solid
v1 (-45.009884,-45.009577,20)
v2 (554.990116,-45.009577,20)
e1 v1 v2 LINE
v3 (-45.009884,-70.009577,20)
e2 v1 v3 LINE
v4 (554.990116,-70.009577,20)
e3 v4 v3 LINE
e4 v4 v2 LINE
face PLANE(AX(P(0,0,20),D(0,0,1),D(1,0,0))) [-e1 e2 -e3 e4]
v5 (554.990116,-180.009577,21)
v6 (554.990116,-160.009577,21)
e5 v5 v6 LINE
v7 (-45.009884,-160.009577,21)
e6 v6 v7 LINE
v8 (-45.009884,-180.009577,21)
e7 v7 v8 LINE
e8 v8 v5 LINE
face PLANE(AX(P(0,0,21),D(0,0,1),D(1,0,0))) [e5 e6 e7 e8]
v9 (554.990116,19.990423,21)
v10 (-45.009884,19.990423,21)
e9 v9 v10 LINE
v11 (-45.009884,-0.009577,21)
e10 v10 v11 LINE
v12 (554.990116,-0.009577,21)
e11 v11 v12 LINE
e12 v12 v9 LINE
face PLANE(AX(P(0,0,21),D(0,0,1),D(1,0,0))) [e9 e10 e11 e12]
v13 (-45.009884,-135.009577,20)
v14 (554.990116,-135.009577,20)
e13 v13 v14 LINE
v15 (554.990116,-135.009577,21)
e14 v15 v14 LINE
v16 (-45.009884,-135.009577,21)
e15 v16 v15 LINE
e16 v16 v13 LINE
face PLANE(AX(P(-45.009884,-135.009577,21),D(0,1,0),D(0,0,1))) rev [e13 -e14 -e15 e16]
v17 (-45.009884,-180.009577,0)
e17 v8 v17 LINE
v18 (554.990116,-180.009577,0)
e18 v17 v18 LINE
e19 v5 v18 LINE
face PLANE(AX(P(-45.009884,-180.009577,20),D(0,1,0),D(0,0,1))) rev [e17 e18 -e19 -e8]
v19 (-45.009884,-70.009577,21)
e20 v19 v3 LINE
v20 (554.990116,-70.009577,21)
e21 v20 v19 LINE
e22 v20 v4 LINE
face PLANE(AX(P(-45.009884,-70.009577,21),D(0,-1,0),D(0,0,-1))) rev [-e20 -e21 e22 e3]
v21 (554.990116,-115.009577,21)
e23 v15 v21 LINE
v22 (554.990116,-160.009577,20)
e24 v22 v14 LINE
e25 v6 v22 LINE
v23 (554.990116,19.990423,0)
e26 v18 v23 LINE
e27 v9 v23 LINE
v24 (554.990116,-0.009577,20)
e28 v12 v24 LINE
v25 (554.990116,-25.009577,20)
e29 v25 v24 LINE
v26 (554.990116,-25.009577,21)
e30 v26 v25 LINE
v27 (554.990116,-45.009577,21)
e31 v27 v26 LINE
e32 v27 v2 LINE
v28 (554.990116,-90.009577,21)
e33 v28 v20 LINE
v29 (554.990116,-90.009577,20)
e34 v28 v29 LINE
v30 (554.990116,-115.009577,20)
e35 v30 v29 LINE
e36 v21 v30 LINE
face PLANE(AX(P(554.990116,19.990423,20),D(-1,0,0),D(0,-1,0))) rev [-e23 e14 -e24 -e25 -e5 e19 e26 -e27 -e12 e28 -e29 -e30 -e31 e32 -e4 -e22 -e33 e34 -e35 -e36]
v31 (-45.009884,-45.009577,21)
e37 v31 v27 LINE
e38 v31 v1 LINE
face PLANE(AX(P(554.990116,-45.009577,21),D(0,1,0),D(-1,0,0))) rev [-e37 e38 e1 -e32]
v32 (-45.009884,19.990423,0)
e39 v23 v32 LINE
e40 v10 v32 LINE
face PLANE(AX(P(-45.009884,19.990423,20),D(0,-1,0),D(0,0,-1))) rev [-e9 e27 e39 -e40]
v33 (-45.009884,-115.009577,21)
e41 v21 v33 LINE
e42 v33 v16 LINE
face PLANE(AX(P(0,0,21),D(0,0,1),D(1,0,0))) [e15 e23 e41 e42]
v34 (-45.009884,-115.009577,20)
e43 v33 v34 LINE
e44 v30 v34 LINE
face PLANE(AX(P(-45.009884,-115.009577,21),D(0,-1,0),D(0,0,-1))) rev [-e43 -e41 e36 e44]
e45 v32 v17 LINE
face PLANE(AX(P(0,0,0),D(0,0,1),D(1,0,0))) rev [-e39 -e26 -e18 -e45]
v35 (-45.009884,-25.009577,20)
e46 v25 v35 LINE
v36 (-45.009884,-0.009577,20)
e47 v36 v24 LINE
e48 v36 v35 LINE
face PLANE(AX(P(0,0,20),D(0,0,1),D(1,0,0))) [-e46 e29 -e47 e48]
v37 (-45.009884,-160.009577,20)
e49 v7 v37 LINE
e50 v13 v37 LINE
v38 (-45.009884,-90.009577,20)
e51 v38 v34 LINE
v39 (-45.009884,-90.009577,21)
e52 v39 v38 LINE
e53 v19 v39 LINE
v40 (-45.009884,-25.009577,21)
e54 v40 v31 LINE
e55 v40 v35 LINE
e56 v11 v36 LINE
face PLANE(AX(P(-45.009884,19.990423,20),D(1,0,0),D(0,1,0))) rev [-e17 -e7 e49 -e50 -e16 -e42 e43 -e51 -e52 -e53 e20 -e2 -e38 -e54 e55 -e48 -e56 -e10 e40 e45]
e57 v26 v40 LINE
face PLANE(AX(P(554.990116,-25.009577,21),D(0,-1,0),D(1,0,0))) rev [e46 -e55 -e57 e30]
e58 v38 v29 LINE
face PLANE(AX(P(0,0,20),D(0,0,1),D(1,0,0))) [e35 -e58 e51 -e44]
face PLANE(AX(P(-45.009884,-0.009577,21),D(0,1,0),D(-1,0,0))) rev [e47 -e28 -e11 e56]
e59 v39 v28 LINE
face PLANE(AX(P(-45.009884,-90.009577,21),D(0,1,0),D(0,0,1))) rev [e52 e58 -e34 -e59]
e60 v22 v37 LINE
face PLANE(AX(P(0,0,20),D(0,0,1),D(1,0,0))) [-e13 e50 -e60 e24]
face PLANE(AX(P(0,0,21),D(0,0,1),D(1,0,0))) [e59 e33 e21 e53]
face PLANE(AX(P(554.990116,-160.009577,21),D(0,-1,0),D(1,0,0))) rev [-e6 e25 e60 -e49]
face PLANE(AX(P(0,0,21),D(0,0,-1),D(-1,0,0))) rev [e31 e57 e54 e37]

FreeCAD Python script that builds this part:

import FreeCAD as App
import Part
import Sketcher
from FreeCAD import Vector
Q = App.Units.Quantity

doc = App.newDocument("Part")
params = doc.addObject("Spreadsheet::Sheet", "Params")
for row, (alias, value) in enumerate([
    ("sketch1_width", "600 mm"),
    ("sketch1_height", "200 mm"),
    ("pad1_length", "20 mm"),
    ("sketch2_width", "600 mm"),
    ("sketch2_height", "20 mm"),
    ("pad2_length", "1 mm"),
], start=1):
    params.set(f"A{row}", alias)
    params.set(f"B{row}", "=" + value)
    params.setAlias(f"B{row}", alias)

body = doc.addObject("PartDesign::Body", "Body")

sketch1 = body.newObject("Sketcher::SketchObject", "Sketch")
sketch1.AttachmentSupport = (doc.getObject("XY_Plane"), [""])
sketch1.MapMode = "FlatFace"
sketch1.addGeometry([
    Part.LineSegment(Vector(-45.009884, 19.990423, 0), Vector(-45.009884, -180.009577, 0)),
    Part.LineSegment(Vector(-45.009884, -180.009577, 0), Vector(554.990116, -180.009577, 0)),
    Part.LineSegment(Vector(554.990116, -180.009577, 0), Vector(554.990116, 19.990423, 0)),
    Part.LineSegment(Vector(554.990116, 19.990423, 0), Vector(-45.009884, 19.990423, 0)),
], False)
sketch1.addConstraint([
    Sketcher.Constraint("Coincident", 0, 2, 1, 1),
    Sketcher.Constraint("Coincident", 1, 2, 2, 1),
    Sketcher.Constraint("Coincident", 2, 2, 3, 1),
    Sketcher.Constraint("Coincident", 3, 2, 0, 1),
    Sketcher.Constraint("Vertical", 0),
    Sketcher.Constraint("Horizontal", 1),
    Sketcher.Constraint("Vertical", 2),
    Sketcher.Constraint("Horizontal", 3),
    Sketcher.Constraint("DistanceX", 1, 1, 1, 2, Q("600 mm")),
    Sketcher.Constraint("DistanceY", 0, 2, 0, 1, Q("200 mm")),
    Sketcher.Constraint("DistanceX", 0, 2, -1, 1, Q("45.009884 mm")),
    Sketcher.Constraint("DistanceY", 0, 2, -1, 1, Q("180.009577 mm")),
])
sketch1.setExpression("Constraints[8]", "Params.sketch1_width")
sketch1.setExpression("Constraints[9]", "Params.sketch1_height")
pad1 = body.newObject("PartDesign::Pad", "Pad")
pad1.Profile = sketch1
pad1.setExpression("Length", "Params.pad1_length")

sketch2 = body.newObject("Sketcher::SketchObject", "Sketch001")
sketch2.AttachmentSupport = (doc.getObject("XY_Plane"), [""])
sketch2.MapMode = "FlatFace"
sketch2.AttachmentOffset = App.Placement(Vector(0, 0, 20), App.Rotation())
sketch2.addGeometry([
    Part.LineSegment(Vector(-45.009884, 19.990423, 0), Vector(-45.009884, -0.009577, 0)),
    Part.LineSegment(Vector(-45.009884, -0.009577, 0), Vector(554.990116, -0.009577, 0)),
    Part.LineSegment(Vector(554.990116, -0.009577, 0), Vector(554.990116, 19.990423, 0)),
    Part.LineSegment(Vector(554.990116, 19.990423, 0), Vector(-45.009884, 19.990423, 0)),
    Part.LineSegment(Vector(-45.009884, -25.009577, 0), Vector(-45.009884, -45.009577, 0)),
    Part.LineSegment(Vector(-45.009884, -45.009577, 0), Vector(554.990116, -45.009577, 0)),
    Part.LineSegment(Vector(554.990116, -45.009577, 0), Vector(554.990116, -25.009577, 0)),
    Part.LineSegment(Vector(554.990116, -25.009577, 0), Vector(-45.009884, -25.009577, 0)),
    Part.LineSegment(Vector(-45.009884, -70.009577, 0), Vector(-45.009884, -90.009577, 0)),
    Part.LineSegment(Vector(-45.009884, -90.009577, 0), Vector(554.990116, -90.009577, 0)),
    Part.LineSegment(Vector(554.990116, -90.009577, 0), Vector(554.990116, -70.009577, 0)),
    Part.LineSegment(Vector(554.990116, -70.009577, 0), Vector(-45.009884, -70.009577, 0)),
    Part.LineSegment(Vector(-45.009884, -115.009577, 0), Vector(-45.009884, -135.009577, 0)),
    Part.LineSegment(Vector(-45.009884, -135.009577, 0), Vector(554.990116, -135.009577, 0)),
    Part.LineSegment(Vector(554.990116, -135.009577, 0), Vector(554.990116, -115.009577, 0)),
    Part.LineSegment(Vector(554.990116, -115.009577, 0), Vector(-45.009884, -115.009577, 0)),
    Part.LineSegment(Vector(-45.009884, -160.009577, 0), Vector(-45.009884, -180.009577, 0)),
    Part.LineSegment(Vector(-45.009884, -180.009577, 0), Vector(554.990116, -180.009577, 0)),
    Part.LineSegment(Vector(554.990116, -180.009577, 0), Vector(554.990116, -160.009577, 0)),
    Part.LineSegment(Vector(554.990116, -160.009577, 0), Vector(-45.009884, -160.009577, 0)),
], False)
sketch2.addConstraint([
    Sketcher.Constraint("Coincident", 0, 2, 1, 1),
    Sketcher.Constraint("Coincident", 1, 2, 2, 1),
    Sketcher.Constraint("Coincident", 2, 2, 3, 1),
    Sketcher.Constraint("Coincident", 3, 2, 0, 1),
    Sketcher.Constraint("Coincident", 4, 2, 5, 1),
    Sketcher.Constraint("Coincident", 5, 2, 6, 1),
    Sketcher.Constraint("Coincident", 6, 2, 7, 1),
    Sketcher.Constraint("Coincident", 7, 2, 4, 1),
    Sketcher.Constraint("Coincident", 8, 2, 9, 1),
    Sketcher.Constraint("Coincident", 9, 2, 10, 1),
    Sketcher.Constraint("Coincident", 10, 2, 11, 1),
    Sketcher.Constraint("Coincident", 11, 2, 8, 1),
    Sketcher.Constraint("Coincident", 12, 2, 13, 1),
    Sketcher.Constraint("Coincident", 13, 2, 14, 1),
    Sketcher.Constraint("Coincident", 14, 2, 15, 1),
    Sketcher.Constraint("Coincident", 15, 2, 12, 1),
    Sketcher.Constraint("Coincident", 16, 2, 17, 1),
    Sketcher.Constraint("Coincident", 17, 2, 18, 1),
    Sketcher.Constraint("Coincident", 18, 2, 19, 1),
    Sketcher.Constraint("Coincident", 19, 2, 16, 1),
    Sketcher.Constraint("Vertical", 0),
    Sketcher.Constraint("Horizontal", 1),
    Sketcher.Constraint("Vertical", 2),
    Sketcher.Constraint("Horizontal", 3),
    Sketcher.Constraint("Vertical", 4),
    Sketcher.Constraint("Horizontal", 5),
    Sketcher.Constraint("Vertical", 6),
    Sketcher.Constraint("Horizontal", 7),
    Sketcher.Constraint("Vertical", 8),
    Sketcher.Constraint("Horizontal", 9),
    Sketcher.Constraint("Vertical", 10),
    Sketcher.Constraint("Horizontal", 11),
    Sketcher.Constraint("Vertical", 12),
    Sketcher.Constraint("Horizontal", 13),
    Sketcher.Constraint("Vertical", 14),
    Sketcher.Constraint("Horizontal", 15),
    Sketcher.Constraint("Vertical", 16),
    Sketcher.Constraint("Horizontal", 17),
    Sketcher.Constraint("Vertical", 18),
    Sketcher.Constraint("Horizontal", 19),
    Sketcher.Constraint("Vertical", 3, 2, 4, 2),
    Sketcher.Constraint("Vertical", 2, 2, 5, 2),
    Sketcher.Constraint("Vertical", 7, 2, 8, 2),
    Sketcher.Constraint("Vertical", 6, 2, 9, 2),
    Sketcher.Constraint("Vertical", 11, 2, 12, 2),
    Sketcher.Constraint("Vertical", 10, 2, 13, 2),
    Sketcher.Constraint("Vertical", 15, 2, 16, 2),
    Sketcher.Constraint("Vertical", 14, 2, 17, 2),
    Sketcher.Constraint("Equal", 2, 4),
    Sketcher.Constraint("Equal", 6, 8),
    Sketcher.Constraint("Equal", 10, 12),
    Sketcher.Constraint("Equal", 14, 16),
    Sketcher.Constraint("DistanceX", 1, 1, 1, 2, Q("600 mm")),
    Sketcher.Constraint("DistanceY", 0, 2, 0, 1, Q("20 mm")),
    Sketcher.Constraint("DistanceY", 4, 2, 0, 2, Q("45 mm")),
    Sketcher.Constraint("DistanceY", 8, 2, 4, 2, Q("45 mm")),
    Sketcher.Constraint("DistanceY", 12, 2, 8, 2, Q("45 mm")),
    Sketcher.Constraint("DistanceY", 16, 2, 12, 2, Q("45 mm")),
    Sketcher.Constraint("DistanceX", 0, 2, -1, 1, Q("45.009884 mm")),
    Sketcher.Constraint("DistanceY", 0, 2, -1, 1, Q("0.009577 mm")),
])
sketch2.setExpression("Constraints[52]", "Params.sketch2_width")
sketch2.setExpression("Constraints[53]", "Params.sketch2_height")
pad2 = body.newObject("PartDesign::Pad", "Pad001")
pad2.Profile = sketch2
pad2.setExpression("Length", "Params.pad2_length")

doc.recompute()
